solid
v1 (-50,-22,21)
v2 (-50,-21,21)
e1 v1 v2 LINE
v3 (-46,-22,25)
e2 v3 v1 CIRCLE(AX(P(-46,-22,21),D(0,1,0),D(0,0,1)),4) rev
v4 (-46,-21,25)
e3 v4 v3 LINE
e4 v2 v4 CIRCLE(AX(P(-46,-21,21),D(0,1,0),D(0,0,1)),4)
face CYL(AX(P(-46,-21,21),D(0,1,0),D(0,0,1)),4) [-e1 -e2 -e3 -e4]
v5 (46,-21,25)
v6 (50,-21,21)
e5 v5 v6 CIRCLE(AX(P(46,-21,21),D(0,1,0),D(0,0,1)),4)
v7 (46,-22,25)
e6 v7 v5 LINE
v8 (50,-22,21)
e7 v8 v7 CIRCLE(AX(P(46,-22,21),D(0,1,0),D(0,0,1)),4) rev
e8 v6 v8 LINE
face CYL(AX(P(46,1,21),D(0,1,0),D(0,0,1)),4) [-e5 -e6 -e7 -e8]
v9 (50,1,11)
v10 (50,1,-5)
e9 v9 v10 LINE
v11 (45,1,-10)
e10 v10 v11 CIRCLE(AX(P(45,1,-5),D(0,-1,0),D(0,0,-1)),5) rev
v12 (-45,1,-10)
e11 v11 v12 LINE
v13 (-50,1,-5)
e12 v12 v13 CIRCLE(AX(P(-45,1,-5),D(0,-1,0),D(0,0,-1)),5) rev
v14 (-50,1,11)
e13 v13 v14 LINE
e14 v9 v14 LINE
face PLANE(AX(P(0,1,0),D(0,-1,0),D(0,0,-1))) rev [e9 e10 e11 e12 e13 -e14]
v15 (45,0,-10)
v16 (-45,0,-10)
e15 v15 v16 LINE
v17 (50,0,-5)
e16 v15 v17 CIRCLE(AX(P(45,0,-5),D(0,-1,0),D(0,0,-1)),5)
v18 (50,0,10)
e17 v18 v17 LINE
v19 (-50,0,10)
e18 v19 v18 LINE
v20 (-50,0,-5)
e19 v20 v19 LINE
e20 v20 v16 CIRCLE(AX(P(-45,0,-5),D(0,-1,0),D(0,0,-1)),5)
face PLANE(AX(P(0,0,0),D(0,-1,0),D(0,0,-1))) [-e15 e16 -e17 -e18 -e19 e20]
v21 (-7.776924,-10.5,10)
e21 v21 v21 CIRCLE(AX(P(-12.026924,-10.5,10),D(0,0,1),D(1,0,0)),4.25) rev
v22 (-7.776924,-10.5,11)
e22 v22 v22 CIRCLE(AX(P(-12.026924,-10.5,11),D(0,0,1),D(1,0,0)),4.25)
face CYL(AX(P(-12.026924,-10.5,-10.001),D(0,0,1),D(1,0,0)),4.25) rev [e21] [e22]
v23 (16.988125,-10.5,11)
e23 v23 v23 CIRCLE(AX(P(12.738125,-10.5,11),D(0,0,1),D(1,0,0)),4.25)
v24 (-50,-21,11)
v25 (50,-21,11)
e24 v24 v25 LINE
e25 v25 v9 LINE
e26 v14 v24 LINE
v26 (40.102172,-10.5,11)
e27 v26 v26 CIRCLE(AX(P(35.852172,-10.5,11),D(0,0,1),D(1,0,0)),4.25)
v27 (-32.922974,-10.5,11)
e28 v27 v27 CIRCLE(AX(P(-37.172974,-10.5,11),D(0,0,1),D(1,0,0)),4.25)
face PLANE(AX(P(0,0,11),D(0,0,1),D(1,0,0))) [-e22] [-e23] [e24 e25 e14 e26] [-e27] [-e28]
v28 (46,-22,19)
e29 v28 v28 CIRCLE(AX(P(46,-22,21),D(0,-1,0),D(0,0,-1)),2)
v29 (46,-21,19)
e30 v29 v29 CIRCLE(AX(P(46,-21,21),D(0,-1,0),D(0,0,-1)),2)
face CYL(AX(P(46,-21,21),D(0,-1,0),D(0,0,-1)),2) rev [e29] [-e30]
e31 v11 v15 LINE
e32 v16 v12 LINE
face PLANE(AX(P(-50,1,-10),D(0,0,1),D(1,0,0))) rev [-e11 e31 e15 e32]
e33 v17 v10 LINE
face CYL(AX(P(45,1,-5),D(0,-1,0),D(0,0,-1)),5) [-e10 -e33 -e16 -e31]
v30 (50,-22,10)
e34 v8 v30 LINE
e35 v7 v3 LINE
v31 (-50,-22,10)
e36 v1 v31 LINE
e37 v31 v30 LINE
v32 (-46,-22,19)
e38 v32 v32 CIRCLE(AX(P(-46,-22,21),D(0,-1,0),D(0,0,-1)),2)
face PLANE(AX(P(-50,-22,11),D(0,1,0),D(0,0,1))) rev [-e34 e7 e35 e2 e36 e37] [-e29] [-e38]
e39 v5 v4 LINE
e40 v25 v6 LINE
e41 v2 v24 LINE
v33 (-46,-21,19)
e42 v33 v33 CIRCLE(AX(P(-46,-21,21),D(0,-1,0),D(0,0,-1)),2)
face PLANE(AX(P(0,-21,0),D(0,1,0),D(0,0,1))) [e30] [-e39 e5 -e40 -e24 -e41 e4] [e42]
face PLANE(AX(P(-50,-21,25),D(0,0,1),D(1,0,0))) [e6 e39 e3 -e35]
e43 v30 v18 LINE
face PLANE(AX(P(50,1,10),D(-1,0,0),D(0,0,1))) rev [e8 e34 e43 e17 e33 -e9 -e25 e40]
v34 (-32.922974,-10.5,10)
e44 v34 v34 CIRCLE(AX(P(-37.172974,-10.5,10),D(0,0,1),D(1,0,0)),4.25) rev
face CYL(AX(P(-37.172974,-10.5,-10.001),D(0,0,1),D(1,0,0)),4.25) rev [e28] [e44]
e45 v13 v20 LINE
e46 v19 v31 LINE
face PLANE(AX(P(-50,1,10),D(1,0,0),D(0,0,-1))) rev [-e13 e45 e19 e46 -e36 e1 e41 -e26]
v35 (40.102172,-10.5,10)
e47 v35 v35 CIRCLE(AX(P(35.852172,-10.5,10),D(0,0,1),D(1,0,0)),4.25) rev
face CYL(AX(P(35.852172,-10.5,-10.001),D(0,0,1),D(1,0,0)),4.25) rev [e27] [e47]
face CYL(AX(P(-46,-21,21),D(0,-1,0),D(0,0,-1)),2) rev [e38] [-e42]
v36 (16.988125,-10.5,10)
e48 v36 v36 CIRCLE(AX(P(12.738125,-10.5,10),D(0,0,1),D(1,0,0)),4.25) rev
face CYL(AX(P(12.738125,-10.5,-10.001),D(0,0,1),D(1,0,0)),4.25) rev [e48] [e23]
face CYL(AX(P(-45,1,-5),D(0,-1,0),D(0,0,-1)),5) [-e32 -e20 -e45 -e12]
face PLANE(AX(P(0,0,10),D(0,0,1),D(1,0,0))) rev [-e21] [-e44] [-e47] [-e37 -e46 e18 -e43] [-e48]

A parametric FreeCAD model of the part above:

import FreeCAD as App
import Part
import Sketcher
from FreeCAD import Vector
Q = App.Units.Quantity


def edges_at(feature, points):
    """Names of the edges that pass closest to the given points."""
    edges = feature.Shape.Edges
    near = lambda p: min(range(len(edges)), key=lambda i: edges[i].distToShape(Part.Vertex(*p))[0])
    return sorted({f"Edge{near(p) + 1}" for p in points})

doc = App.newDocument("Part")
params = doc.addObject("Spreadsheet::Sheet", "Params")
for row, (alias, value) in enumerate([
    ("sketch1_width", "100 mm"),
    ("sketch1_height", "20 mm"),
    ("pad1_length", "1 mm"),
    ("sketch2_width", "100 mm"),
    ("sketch2_height", "23 mm"),
    ("pad2_length", "1 mm"),
    ("sketch3_diameter", "4 mm"),
    ("sketch3_width", "100 mm"),
    ("sketch3_height", "14 mm"),
    ("pad3_length", "1 mm"),
    ("fillet_radius", "4 mm"),
    ("sketch4_diameter", "8.5 mm"),
    ("sketch5_diameter", "8.5 mm"),
    ("sketch6_diameter", "8.5 mm"),
    ("sketch7_diameter", "8.5 mm"),
    ("fillet2_radius", "5 mm"),
], start=1):
    params.set(f"A{row}", alias)
    params.set(f"B{row}", "=" + value)
    params.setAlias(f"B{row}", alias)

body = doc.addObject("PartDesign::Body", "Body")

sketch1 = doc.addObject("Sketcher::SketchObject", "Sketch")
body.addObject(sketch1)
sketch1.AttachmentSupport = (doc.XZ_Plane, [""])
sketch1.MapMode = "FlatFace"
sketch1.addGeometry([
    Part.LineSegment(Vector(-50, -10, 0), Vector(-50, 10, 0)),
    Part.LineSegment(Vector(-50, 10, 0), Vector(50, 10, 0)),
    Part.LineSegment(Vector(50, 10, 0), Vector(50, -10, 0)),
    Part.LineSegment(Vector(50, -10, 0), Vector(-50, -10, 0)),
], False)
sketch1.addConstraint([
    Sketcher.Constraint("Coincident", 0, 2, 1, 1),
    Sketcher.Constraint("Coincident", 1, 2, 2, 1),
    Sketcher.Constraint("Coincident", 2, 2, 3, 1),
    Sketcher.Constraint("Coincident", 3, 2, 0, 1),
    Sketcher.Constraint("Vertical", 0),
    Sketcher.Constraint("Horizontal", 1),
    Sketcher.Constraint("Vertical", 2),
    Sketcher.Constraint("Horizontal", 3),
    Sketcher.Constraint("Symmetric", 0, 2, 2, 2, -1, 1),
    Sketcher.Constraint("DistanceX", 1, 1, 1, 2, Q("100 mm")),
    Sketcher.Constraint("DistanceY", 0, 1, 0, 2, Q("20 mm")),
])
sketch1.setExpression("Constraints[9]", "Params.sketch1_width")
sketch1.setExpression("Constraints[10]", "Params.sketch1_height")
pad1 = doc.addObject("PartDesign::Pad", "Pad")
body.addObject(pad1)
pad1.Profile = sketch1
pad1.setExpression("Length", "Params.pad1_length")
pad1.Reversed = True

sketch2 = doc.addObject("Sketcher::SketchObject", "Sketch001")
body.addObject(sketch2)
sketch2.AttachmentSupport = (doc.XY_Plane, [""])
sketch2.MapMode = "FlatFace"
sketch2.AttachmentOffset = App.Placement(Vector(0, 0, 10), App.Rotation())
sketch2.addGeometry([
    Part.LineSegment(Vector(-50, 1, 0), Vector(-50, -22, 0)),
    Part.LineSegment(Vector(-50, -22, 0), Vector(50, -22, 0)),
    Part.LineSegment(Vector(50, -22, 0), Vector(50, 1, 0)),
    Part.LineSegment(Vector(50, 1, 0), Vector(-50, 1, 0)),
], False)
sketch2.addConstraint([
    Sketcher.Constraint("Coincident", 0, 2, 1, 1),
    Sketcher.Constraint("Coincident", 1, 2, 2, 1),
    Sketcher.Constraint("Coincident", 2, 2, 3, 1),
    Sketcher.Constraint("Coincident", 3, 2, 0, 1),
    Sketcher.Constraint("Vertical", 0),
    Sketcher.Constraint("Horizontal", 1),
    Sketcher.Constraint("Vertical", 2),
    Sketcher.Constraint("Horizontal", 3),
    Sketcher.Constraint("DistanceX", 1, 1, 1, 2, Q("100 mm")),
    Sketcher.Constraint("DistanceY", 0, 2, 0, 1, Q("23 mm")),
    Sketcher.Constraint("DistanceX", 0, 2, -1, 1, Q("50 mm")),
    Sketcher.Constraint("DistanceY", 0, 2, -1, 1, Q("22 mm")),
])
sketch2.setExpression("Constraints[8]", "Params.sketch2_width")
sketch2.setExpression("Constraints[9]", "Params.sketch2_height")
pad2 = doc.addObject("PartDesign::Pad", "Pad001")
body.addObject(pad2)
pad2.Profile = sketch2
pad2.setExpression("Length", "Params.pad2_length")

sketch3 = doc.addObject("Sketcher::SketchObject", "Sketch002")
body.addObject(sketch3)
sketch3.AttachmentSupport = (doc.XZ_Plane, [""])
sketch3.MapMode = "FlatFace"
sketch3.AttachmentOffset = App.Placement(Vector(0, 0, 22), App.Rotation())
sketch3.addGeometry([
    Part.LineSegment(Vector(-50, 25, 0), Vector(-50, 11, 0)),
    Part.LineSegment(Vector(-50, 11, 0), Vector(50, 11, 0)),
    Part.LineSegment(Vector(50, 11, 0), Vector(50, 25, 0)),
    Part.LineSegment(Vector(50, 25, 0), Vector(-50, 25, 0)),
    Part.Circle(Vector(-46, 21, 0), Vector(0, 0, 1), 2),
    Part.Circle(Vector(46, 21, 0), Vector(0, 0, 1), 2),
], False)
sketch3.addConstraint([
    Sketcher.Constraint("Coincident", 0, 2, 1, 1),
    Sketcher.Constraint("Coincident", 1, 2, 2, 1),
    Sketcher.Constraint("Coincident", 2, 2, 3, 1),
    Sketcher.Constraint("Coincident", 3, 2, 0, 1),
    Sketcher.Constraint("Vertical", 0),
    Sketcher.Constraint("Horizontal", 1),
    Sketcher.Constraint("Vertical", 2),
    Sketcher.Constraint("Horizontal", 3),
    Sketcher.Constraint("Equal", 4, 5),
    Sketcher.Constraint("Symmetric", 4, 3, 5, 3, -2),
    Sketcher.Constraint("Diameter", 4, Q("4 mm")),
    Sketcher.Constraint("DistanceX", 1, 1, 1, 2, Q("100 mm")),
    Sketcher.Constraint("DistanceY", 0, 2, 0, 1, Q("14 mm")),
    Sketcher.Constraint("DistanceX", 4, 3, -1, 1, Q("46 mm")),
    Sketcher.Constraint("DistanceY", -1, 1, 4, 3, Q("21 mm")),
    Sketcher.Constraint("DistanceX", 0, 2, -1, 1, Q("50 mm")),
    Sketcher.Constraint("DistanceY", -1, 1, 0, 2, Q("11 mm")),
])
sketch3.setExpression("Constraints[10]", "Params.sketch3_diameter")
sketch3.setExpression("Constraints[11]", "Params.sketch3_width")
sketch3.setExpression("Constraints[12]", "Params.sketch3_height")
pad3 = doc.addObject("PartDesign::Pad", "Pad002")
body.addObject(pad3)
pad3.Profile = sketch3
pad3.setExpression("Length", "Params.pad3_length")
pad3.Reversed = True
doc.recompute()

fillet = doc.addObject("PartDesign::Fillet", "Fillet")
body.addObject(fillet)
fillet.Base = (pad3, edges_at(pad3, [(-50, -21.5, 25), (50, -21.5, 25)]))
fillet.setExpression("Radius", "Params.fillet_radius")

sketch4 = doc.addObject("Sketcher::SketchObject", "Sketch003")
body.addObject(sketch4)
sketch4.AttachmentSupport = (doc.XY_Plane, [""])
sketch4.MapMode = "FlatFace"
sketch4.AttachmentOffset = App.Placement(Vector(0, 0, 11), App.Rotation())
sketch4.addGeometry(Part.Circle(Vector(-37.172974, -10.5, 0), Vector(0, 0, 1), 4.25), False)
sketch4.addConstraint([
    Sketcher.Constraint("Diameter", 0, Q("8.5 mm")),
    Sketcher.Constraint("DistanceY", 0, 3, -1, 1, Q("10.5 mm")),
    Sketcher.Constraint("DistanceX", 0, 3, -1, 1, Q("37.172974 mm")),
])
sketch4.setExpression("Constraints[0]", "Params.sketch4_diameter")
pocket1 = doc.addObject("PartDesign::Pocket", "Pocket")
body.addObject(pocket1)
pocket1.Profile = sketch4
pocket1.Type = "UpToFirst"

sketch5 = doc.addObject("Sketcher::SketchObject", "Sketch004")
body.addObject(sketch5)
sketch5.AttachmentSupport = (doc.XY_Plane, [""])
sketch5.MapMode = "FlatFace"
sketch5.AttachmentOffset = App.Placement(Vector(0, 0, 11), App.Rotation())
sketch5.addGeometry(Part.Circle(Vector(-12.026924, -10.5, 0), Vector(0, 0, 1), 4.25), False)
sketch5.addConstraint([
    Sketcher.Constraint("Diameter", 0, Q("8.5 mm")),
    Sketcher.Constraint("DistanceY", 0, 3, -1, 1, Q("10.5 mm")),
    Sketcher.Constraint("DistanceX", 0, 3, -1, 1, Q("12.026924 mm")),
])
sketch5.setExpression("Constraints[0]", "Params.sketch5_diameter")
pocket2 = doc.addObject("PartDesign::Pocket", "Pocket001")
body.addObject(pocket2)
pocket2.Profile = sketch5
pocket2.Type = "UpToFirst"

sketch6 = doc.addObject("Sketcher::SketchObject", "Sketch005")
body.addObject(sketch6)
sketch6.AttachmentSupport = (doc.XY_Plane, [""])
sketch6.MapMode = "FlatFace"
sketch6.AttachmentOffset = App.Placement(Vector(0, 0, 11), App.Rotation())
sketch6.addGeometry(Part.Circle(Vector(12.738125, -10.5, 0), Vector(0, 0, 1), 4.25), False)
sketch6.addConstraint([
    Sketcher.Constraint("Diameter", 0, Q("8.5 mm")),
    Sketcher.Constraint("DistanceY", 0, 3, -1, 1, Q("10.5 mm")),
    Sketcher.Constraint("DistanceX", -1, 1, 0, 3, Q("12.738125 mm")),
])
sketch6.setExpression("Constraints[0]", "Params.sketch6_diameter")
pocket3 = doc.addObject("PartDesign::Pocket", "Pocket002")
body.addObject(pocket3)
pocket3.Profile = sketch6
pocket3.Type = "UpToFirst"

sketch7 = doc.addObject("Sketcher::SketchObject", "Sketch006")
body.addObject(sketch7)
sketch7.AttachmentSupport = (doc.XY_Plane, [""])
sketch7.MapMode = "FlatFace"
sketch7.AttachmentOffset = App.Placement(Vector(0, 0, 11), App.Rotation())
sketch7.addGeometry(Part.Circle(Vector(35.852172, -10.5, 0), Vector(0, 0, 1), 4.25), False)
sketch7.addConstraint([
    Sketcher.Constraint("Diameter", 0, Q("8.5 mm")),
    Sketcher.Constraint("DistanceY", 0, 3, -1, 1, Q("10.5 mm")),
    Sketcher.Constraint("DistanceX", -1, 1, 0, 3, Q("35.852172 mm")),
])
sketch7.setExpression("Constraints[0]", "Params.sketch7_diameter")
pocket4 = doc.addObject("PartDesign::Pocket", "Pocket003")
body.addObject(pocket4)
pocket4.Profile = sketch7
pocket4.Type = "UpToFirst"
doc.recompute()

fillet2 = doc.addObject("PartDesign::Fillet", "Fillet001")
body.addObject(fillet2)
fillet2.Base = (pocket4, edges_at(pocket4, [(-50, 0.5, -10), (50, 0.5, -10)]))
fillet2.setExpression("Radius", "Params.fillet2_radius")

doc.recompute()
